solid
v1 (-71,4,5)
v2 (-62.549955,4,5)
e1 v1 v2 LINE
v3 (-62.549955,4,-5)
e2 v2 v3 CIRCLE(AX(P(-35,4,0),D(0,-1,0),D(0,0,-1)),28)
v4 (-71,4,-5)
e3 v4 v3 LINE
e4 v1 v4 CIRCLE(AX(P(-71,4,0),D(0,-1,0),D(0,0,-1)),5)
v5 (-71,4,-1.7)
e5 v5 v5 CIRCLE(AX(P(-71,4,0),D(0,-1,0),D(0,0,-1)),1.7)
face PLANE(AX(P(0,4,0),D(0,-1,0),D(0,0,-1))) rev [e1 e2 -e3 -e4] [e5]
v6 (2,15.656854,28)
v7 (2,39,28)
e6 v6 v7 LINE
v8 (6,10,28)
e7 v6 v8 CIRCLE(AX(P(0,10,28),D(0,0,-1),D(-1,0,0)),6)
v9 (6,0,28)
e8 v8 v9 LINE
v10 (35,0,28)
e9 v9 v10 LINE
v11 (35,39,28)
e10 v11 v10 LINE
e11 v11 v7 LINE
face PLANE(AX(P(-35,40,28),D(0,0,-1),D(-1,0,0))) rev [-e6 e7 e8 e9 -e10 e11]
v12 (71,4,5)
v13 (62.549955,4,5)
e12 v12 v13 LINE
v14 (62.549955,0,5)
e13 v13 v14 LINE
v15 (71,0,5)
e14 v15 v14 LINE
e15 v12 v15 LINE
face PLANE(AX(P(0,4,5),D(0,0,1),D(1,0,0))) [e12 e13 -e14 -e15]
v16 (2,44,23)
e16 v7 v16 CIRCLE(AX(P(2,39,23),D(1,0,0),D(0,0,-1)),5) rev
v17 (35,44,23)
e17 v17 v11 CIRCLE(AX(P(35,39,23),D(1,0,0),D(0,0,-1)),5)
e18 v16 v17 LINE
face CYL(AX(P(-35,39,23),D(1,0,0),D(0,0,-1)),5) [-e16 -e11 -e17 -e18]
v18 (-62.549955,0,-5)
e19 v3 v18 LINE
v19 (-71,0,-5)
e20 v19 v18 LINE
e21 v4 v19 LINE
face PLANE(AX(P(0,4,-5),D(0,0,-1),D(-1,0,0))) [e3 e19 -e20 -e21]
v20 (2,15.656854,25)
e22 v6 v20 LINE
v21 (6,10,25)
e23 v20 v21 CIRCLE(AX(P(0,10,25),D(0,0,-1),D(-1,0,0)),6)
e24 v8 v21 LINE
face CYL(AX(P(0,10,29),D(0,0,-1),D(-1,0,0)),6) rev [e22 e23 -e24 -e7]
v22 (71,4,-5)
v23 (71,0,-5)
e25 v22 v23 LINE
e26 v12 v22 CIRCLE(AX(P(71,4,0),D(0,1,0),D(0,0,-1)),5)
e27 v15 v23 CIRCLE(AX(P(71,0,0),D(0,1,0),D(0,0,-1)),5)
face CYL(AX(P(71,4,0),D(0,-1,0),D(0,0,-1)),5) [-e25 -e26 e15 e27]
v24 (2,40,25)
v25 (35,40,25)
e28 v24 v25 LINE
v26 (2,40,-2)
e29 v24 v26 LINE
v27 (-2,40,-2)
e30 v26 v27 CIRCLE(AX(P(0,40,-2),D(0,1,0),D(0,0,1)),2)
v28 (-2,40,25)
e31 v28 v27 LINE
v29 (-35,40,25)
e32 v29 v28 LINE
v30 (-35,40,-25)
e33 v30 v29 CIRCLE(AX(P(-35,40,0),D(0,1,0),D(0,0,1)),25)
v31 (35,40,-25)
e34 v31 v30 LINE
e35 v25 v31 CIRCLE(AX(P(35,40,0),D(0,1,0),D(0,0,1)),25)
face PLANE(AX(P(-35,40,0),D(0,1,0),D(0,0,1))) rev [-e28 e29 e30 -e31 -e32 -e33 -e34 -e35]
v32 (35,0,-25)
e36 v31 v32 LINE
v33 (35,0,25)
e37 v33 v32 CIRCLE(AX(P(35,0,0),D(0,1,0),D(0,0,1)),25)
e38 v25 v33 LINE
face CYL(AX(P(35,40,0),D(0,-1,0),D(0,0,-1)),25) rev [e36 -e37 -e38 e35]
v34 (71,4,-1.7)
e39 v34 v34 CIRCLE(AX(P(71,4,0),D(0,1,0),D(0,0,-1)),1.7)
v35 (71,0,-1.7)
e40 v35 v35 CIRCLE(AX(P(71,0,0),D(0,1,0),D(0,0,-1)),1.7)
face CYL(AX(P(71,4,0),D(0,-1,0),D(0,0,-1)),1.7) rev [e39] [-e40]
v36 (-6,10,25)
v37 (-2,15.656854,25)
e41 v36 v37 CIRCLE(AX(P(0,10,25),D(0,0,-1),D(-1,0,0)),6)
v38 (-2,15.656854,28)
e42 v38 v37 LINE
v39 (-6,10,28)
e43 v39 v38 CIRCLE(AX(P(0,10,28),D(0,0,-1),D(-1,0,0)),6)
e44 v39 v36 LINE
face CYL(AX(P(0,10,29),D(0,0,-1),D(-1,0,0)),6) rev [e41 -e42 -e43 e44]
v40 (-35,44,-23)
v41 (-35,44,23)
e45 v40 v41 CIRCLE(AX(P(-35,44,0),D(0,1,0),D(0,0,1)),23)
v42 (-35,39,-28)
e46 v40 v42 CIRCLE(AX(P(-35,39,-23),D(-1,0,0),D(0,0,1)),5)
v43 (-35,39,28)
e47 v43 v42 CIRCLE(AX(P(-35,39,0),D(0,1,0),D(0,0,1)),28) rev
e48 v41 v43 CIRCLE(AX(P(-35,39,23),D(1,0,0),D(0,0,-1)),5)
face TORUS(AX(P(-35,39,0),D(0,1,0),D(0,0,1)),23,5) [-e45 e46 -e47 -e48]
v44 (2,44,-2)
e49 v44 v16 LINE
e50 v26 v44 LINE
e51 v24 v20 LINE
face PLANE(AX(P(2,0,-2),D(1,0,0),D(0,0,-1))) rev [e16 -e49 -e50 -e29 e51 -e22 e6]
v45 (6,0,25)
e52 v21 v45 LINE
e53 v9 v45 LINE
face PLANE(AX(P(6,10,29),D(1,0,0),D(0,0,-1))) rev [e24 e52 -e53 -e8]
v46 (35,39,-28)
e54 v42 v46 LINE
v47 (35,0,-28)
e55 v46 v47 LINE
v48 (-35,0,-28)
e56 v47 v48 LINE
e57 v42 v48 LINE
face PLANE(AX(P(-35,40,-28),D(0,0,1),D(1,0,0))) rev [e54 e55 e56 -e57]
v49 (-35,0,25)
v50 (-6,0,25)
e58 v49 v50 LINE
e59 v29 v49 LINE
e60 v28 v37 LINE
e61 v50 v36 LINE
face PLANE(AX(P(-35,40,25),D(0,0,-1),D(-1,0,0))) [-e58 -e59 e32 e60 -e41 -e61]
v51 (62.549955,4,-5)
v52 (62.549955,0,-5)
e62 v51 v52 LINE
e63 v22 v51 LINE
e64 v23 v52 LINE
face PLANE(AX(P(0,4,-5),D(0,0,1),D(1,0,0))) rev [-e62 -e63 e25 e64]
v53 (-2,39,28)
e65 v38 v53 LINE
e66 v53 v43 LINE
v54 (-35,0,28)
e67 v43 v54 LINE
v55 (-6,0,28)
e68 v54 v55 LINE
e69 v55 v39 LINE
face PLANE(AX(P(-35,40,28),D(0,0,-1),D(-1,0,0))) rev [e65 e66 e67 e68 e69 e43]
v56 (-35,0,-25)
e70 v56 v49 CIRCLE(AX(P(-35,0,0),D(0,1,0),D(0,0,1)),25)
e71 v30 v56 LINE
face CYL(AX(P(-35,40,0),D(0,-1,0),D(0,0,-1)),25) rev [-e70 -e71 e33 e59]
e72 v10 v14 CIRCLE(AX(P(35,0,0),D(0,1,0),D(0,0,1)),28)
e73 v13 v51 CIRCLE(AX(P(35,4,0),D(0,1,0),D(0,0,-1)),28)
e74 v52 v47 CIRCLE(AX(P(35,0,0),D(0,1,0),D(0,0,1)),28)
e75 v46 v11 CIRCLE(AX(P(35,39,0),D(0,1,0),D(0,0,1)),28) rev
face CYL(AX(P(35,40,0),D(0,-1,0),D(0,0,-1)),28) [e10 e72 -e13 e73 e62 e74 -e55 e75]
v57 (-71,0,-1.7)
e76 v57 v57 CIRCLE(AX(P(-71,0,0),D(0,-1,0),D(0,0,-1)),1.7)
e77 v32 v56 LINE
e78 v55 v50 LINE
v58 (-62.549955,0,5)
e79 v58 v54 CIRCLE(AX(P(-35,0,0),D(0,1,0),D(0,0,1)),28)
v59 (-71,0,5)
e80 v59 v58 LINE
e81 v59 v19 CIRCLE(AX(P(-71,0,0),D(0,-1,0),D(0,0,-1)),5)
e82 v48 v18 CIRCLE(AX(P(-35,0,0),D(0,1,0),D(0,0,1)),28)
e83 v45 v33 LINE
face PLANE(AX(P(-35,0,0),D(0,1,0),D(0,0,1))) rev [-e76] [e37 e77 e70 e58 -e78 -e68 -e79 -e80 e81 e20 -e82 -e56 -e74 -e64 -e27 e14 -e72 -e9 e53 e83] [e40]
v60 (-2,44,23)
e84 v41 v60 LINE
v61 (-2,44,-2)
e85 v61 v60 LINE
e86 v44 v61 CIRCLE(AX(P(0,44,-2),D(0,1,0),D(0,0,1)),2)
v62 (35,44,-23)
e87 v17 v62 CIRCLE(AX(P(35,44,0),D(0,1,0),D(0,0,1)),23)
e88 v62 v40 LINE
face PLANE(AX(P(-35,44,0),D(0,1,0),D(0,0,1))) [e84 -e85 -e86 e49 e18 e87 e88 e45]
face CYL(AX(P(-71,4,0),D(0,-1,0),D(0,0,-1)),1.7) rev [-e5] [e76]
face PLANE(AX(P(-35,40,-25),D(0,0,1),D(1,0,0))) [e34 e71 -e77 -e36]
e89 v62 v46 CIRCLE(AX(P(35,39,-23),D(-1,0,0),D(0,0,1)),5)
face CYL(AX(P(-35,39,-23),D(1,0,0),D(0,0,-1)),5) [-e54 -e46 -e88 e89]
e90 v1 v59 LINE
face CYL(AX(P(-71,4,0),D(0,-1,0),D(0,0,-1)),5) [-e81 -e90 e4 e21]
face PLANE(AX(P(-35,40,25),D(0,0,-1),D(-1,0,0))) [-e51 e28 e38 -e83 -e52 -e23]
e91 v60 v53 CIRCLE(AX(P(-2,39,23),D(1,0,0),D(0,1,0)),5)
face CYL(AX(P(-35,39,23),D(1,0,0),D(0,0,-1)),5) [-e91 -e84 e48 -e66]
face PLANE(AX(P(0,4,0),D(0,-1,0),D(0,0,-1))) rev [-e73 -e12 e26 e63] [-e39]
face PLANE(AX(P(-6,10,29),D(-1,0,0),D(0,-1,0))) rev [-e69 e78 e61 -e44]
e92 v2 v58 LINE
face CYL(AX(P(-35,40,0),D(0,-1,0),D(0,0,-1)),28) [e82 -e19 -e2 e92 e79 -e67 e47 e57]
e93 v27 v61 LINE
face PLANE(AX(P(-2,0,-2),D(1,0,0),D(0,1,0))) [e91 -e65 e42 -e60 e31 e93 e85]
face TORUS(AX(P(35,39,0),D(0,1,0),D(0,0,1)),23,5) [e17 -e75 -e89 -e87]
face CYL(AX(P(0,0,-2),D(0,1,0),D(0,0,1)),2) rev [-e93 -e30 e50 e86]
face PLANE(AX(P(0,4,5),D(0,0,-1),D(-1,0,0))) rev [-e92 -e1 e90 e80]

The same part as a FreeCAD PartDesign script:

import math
import FreeCAD as App
import Part
import Sketcher
from FreeCAD import Vector
Q = App.Units.Quantity


def edges_at(feature, points):
    """Names of the edges that pass closest to the given points."""
    edges = feature.Shape.Edges
    near = lambda p: min(range(len(edges)), key=lambda i: edges[i].distToShape(Part.Vertex(*p))[0])
    return sorted({f"Edge{near(p) + 1}" for p in points})


def add_polygon(sketch, points):
    """Adds a closed chain of lines whose ends are joined by coincident constraints."""
    first, n = sketch.GeometryCount, len(points)
    for a, b in zip(points, points[1:] + points[:1]):
        sketch.addGeometry(Part.LineSegment(App.Vector(*a, 0), App.Vector(*b, 0)), False)
    for i in range(n):
        sketch.addConstraint(Sketcher.Constraint("Coincident", first + i, 2, first + (i + 1) % n, 1))

doc = App.newDocument("Part")
body = doc.addObject("PartDesign::Body", "Body")

sketch1 = body.newObject("Sketcher::SketchObject", "Sketch")
sketch1.AttachmentSupport = (doc.getObject("XZ_Plane"), [""])
sketch1.MapMode = "FlatFace"
sketch1.addGeometry(Part.LineSegment(Vector(35, -28, 0), Vector(-35, -28, 0)), False)
sketch1.addGeometry(Part.ArcOfCircle(Part.Circle(Vector(-35, 0, 0), Vector(0, 0, 1), 28), math.radians(90), math.radians(270)), False)
sketch1.addGeometry(Part.LineSegment(Vector(-35, 28, 0), Vector(35, 28, 0)), False)
sketch1.addGeometry(Part.ArcOfCircle(Part.Circle(Vector(35, 0, 0), Vector(0, 0, 1), 28), math.radians(-90), math.radians(90)), False)
sketch1.addGeometry(Part.LineSegment(Vector(-35, -25, 0), Vector(35, -25, 0)), False)
sketch1.addGeometry(Part.ArcOfCircle(Part.Circle(Vector(35, 0, 0), Vector(0, 0, 1), 25), math.radians(-90), math.radians(90)), False)
sketch1.addGeometry(Part.LineSegment(Vector(35, 25, 0), Vector(-35, 25, 0)), False)
sketch1.addGeometry(Part.ArcOfCircle(Part.Circle(Vector(-35, 0, 0), Vector(0, 0, 1), 25), math.radians(90), math.radians(270)), False)
sketch1.addConstraint(Sketcher.Constraint("Tangent", 0, 2, 1, 2))
sketch1.addConstraint(Sketcher.Constraint("Tangent", 1, 1, 2, 1))
sketch1.addConstraint(Sketcher.Constraint("Tangent", 2, 2, 3, 2))
sketch1.addConstraint(Sketcher.Constraint("Tangent", 3, 1, 0, 1))
sketch1.addConstraint(Sketcher.Constraint("Tangent", 4, 2, 5, 1))
sketch1.addConstraint(Sketcher.Constraint("Tangent", 5, 2, 6, 1))
sketch1.addConstraint(Sketcher.Constraint("Tangent", 6, 2, 7, 1))
sketch1.addConstraint(Sketcher.Constraint("Tangent", 7, 2, 4, 1))
sketch1.addConstraint(Sketcher.Constraint("Horizontal", 0))
sketch1.addConstraint(Sketcher.Constraint("Horizontal", 2))
sketch1.addConstraint(Sketcher.Constraint("Horizontal", 4))
sketch1.addConstraint(Sketcher.Constraint("Horizontal", 6))
sketch1.addConstraint(Sketcher.Constraint("Coincident", 5, 3, 3, 3))
sketch1.addConstraint(Sketcher.Constraint("Symmetric", 1, 3, 3, 3, -1, 1))
sketch1.addConstraint(Sketcher.Constraint("Vertical", 7, 3, 0, 2))
sketch1.addConstraint(Sketcher.Constraint("Radius", 1, Q("28 mm")))
sketch1.addConstraint(Sketcher.Constraint("Radius", 5, Q("25 mm")))
sketch1.addConstraint(Sketcher.Constraint("DistanceX", 0, 2, 0, 1, Q("70 mm")))
pad1 = body.newObject("PartDesign::Pad", "Pad")
pad1.Profile = sketch1
pad1.Length = 40
pad1.Reversed = True

sketch2 = body.newObject("Sketcher::SketchObject", "Sketch001")
sketch2.AttachmentSupport = (doc.getObject("XZ_Plane"), [""])
sketch2.MapMode = "FlatFace"
sketch2.AttachmentOffset = App.Placement(Vector(0, 0, -40), App.Rotation())
sketch2.addGeometry(Part.LineSegment(Vector(35, -28, 0), Vector(-35, -28, 0)), False)
sketch2.addGeometry(Part.ArcOfCircle(Part.Circle(Vector(-35, 0, 0), Vector(0, 0, 1), 28), math.radians(90), math.radians(270)), False)
sketch2.addGeometry(Part.LineSegment(Vector(-35, 28, 0), Vector(35, 28, 0)), False)
sketch2.addGeometry(Part.ArcOfCircle(Part.Circle(Vector(35, 0, 0), Vector(0, 0, 1), 28), math.radians(-90), math.radians(90)), False)
sketch2.addConstraint(Sketcher.Constraint("Tangent", 0, 2, 1, 2))
sketch2.addConstraint(Sketcher.Constraint("Tangent", 1, 1, 2, 1))
sketch2.addConstraint(Sketcher.Constraint("Tangent", 2, 2, 3, 2))
sketch2.addConstraint(Sketcher.Constraint("Tangent", 3, 1, 0, 1))
sketch2.addConstraint(Sketcher.Constraint("Horizontal", 0))
sketch2.addConstraint(Sketcher.Constraint("Horizontal", 2))
sketch2.addConstraint(Sketcher.Constraint("Symmetric", 1, 3, 3, 3, -1, 1))
sketch2.addConstraint(Sketcher.Constraint("Radius", 1, Q("28 mm")))
sketch2.addConstraint(Sketcher.Constraint("DistanceX", 0, 2, 0, 1, Q("70 mm")))
pad2 = body.newObject("PartDesign::Pad", "Pad001")
pad2.Profile = sketch2
pad2.Length = 4
pad2.Reversed = True

sketch3 = body.newObject("Sketcher::SketchObject", "Sketch002")
sketch3.AttachmentSupport = (doc.getObject("XZ_Plane"), [""])
sketch3.MapMode = "FlatFace"
sketch3.addGeometry(Part.LineSegment(Vector(-62.5, 5, 0), Vector(-71, 5, 0)), False)
sketch3.addGeometry(Part.ArcOfCircle(Part.Circle(Vector(-71, 0, 0), Vector(0, 0, 1), 5), math.radians(90), math.radians(270)), False)
sketch3.addGeometry(Part.LineSegment(Vector(-71, -5, 0), Vector(-62.5, -5, 0)), False)
sketch3.addGeometry(Part.ArcOfCircle(Part.Circle(Vector(-35, 0, 0), Vector(0, 0, 1), 28), math.radians(170), math.radians(190)), False)
sketch3.addGeometry(Part.Circle(Vector(-71, 0, 0), Vector(0, 0, 1), 1.7), False)
sketch3.addConstraint(Sketcher.Constraint("Tangent", 0, 2, 1, 1))
sketch3.addConstraint(Sketcher.Constraint("Tangent", 1, 2, 2, 1))
sketch3.addConstraint(Sketcher.Constraint("Coincident", 2, 2, 3, 2))
sketch3.addConstraint(Sketcher.Constraint("Coincident", 3, 1, 0, 1))
sketch3.addConstraint(Sketcher.Constraint("Horizontal", 0))
sketch3.addConstraint(Sketcher.Constraint("Horizontal", 2))
sketch3.addConstraint(Sketcher.Constraint("Coincident", 4, 3, 1, 3))
sketch3.addConstraint(Sketcher.Constraint("Symmetric", 2, 2, 3, 1, -1))
sketch3.addConstraint(Sketcher.Constraint("Radius", 1, Q("5 mm")))
sketch3.addConstraint(Sketcher.Constraint("Radius", 3, Q("28 mm")))
sketch3.addConstraint(Sketcher.Constraint("Diameter", 4, Q("3.4 mm")))
sketch3.addConstraint(Sketcher.Constraint("DistanceX", 1, 3, -1, 1, Q("71 mm")))
sketch3.addConstraint(Sketcher.Constraint("DistanceX", 3, 3, -1, 1, Q("35 mm")))
pad3 = body.newObject("PartDesign::Pad", "Pad002")
pad3.Profile = sketch3
pad3.Length = 4
pad3.Reversed = True
doc.recompute()

mirrored = body.newObject("PartDesign::Mirrored", "Mirrored")
mirrored.Originals = [pad3]
mirrored.MirrorPlane = (doc.getObject("YZ_Plane"), [""])
body.Tip = mirrored

sketch4 = body.newObject("Sketcher::SketchObject", "Sketch003")
sketch4.AttachmentSupport = (doc.getObject("XY_Plane"), [""])
sketch4.MapMode = "FlatFace"
sketch4.AttachmentOffset = App.Placement(Vector(0, 0, 25), App.Rotation())
sketch4.addGeometry(Part.LineSegment(Vector(-6, 0, 0), Vector(-6, 10, 0)), False)
sketch4.addGeometry(Part.ArcOfCircle(Part.Circle(Vector(0, 10, 0), Vector(0, 0, 1), 6), math.radians(0), math.radians(180)), False)
sketch4.addGeometry(Part.LineSegment(Vector(6, 10, 0), Vector(6, 0, 0)), False)
sketch4.addGeometry(Part.LineSegment(Vector(6, 0, 0), Vector(-6, 0, 0)), False)
sketch4.addConstraint(Sketcher.Constraint("Tangent", 0, 2, 1, 2))
sketch4.addConstraint(Sketcher.Constraint("Tangent", 1, 1, 2, 1))
sketch4.addConstraint(Sketcher.Constraint("Coincident", 2, 2, 3, 1))
sketch4.addConstraint(Sketcher.Constraint("Coincident", 3, 2, 0, 1))
sketch4.addConstraint(Sketcher.Constraint("Vertical", 0))
sketch4.addConstraint(Sketcher.Constraint("Vertical", 2))
sketch4.addConstraint(Sketcher.Constraint("Horizontal", 3))
sketch4.addConstraint(Sketcher.Constraint("Symmetric", 2, 2, 3, 2, -1, 1))
sketch4.addConstraint(Sketcher.Constraint("Radius", 1, Q("6 mm")))
sketch4.addConstraint(Sketcher.Constraint("DistanceY", 0, 1, 0, 2, Q("10 mm")))
pocket1 = body.newObject("PartDesign::Pocket", "Pocket")
pocket1.Profile = sketch4
pocket1.Length = 4
pocket1.Reversed = True

sketch5 = body.newObject("Sketcher::SketchObject", "Sketch004")
sketch5.AttachmentSupport = (doc.getObject("XY_Plane"), [""])
sketch5.MapMode = "FlatFace"
sketch5.AttachmentOffset = App.Placement(Vector(0, 0, 28), App.Rotation())
add_polygon(sketch5, [(-2, 44), (-2, 0), (2, 0), (2, 44)])
sketch5.addConstraint(Sketcher.Constraint("Vertical", 0))
sketch5.addConstraint(Sketcher.Constraint("Horizontal", 1))
sketch5.addConstraint(Sketcher.Constraint("Vertical", 2))
sketch5.addConstraint(Sketcher.Constraint("Horizontal", 3))
sketch5.addConstraint(Sketcher.Constraint("Symmetric", 0, 2, 1, 2, -1, 1))
sketch5.addConstraint(Sketcher.Constraint("DistanceX", 1, 1, 1, 2, Q("4 mm")))
sketch5.addConstraint(Sketcher.Constraint("DistanceY", 0, 2, 0, 1, Q("44 mm")))
pocket2 = body.newObject("PartDesign::Pocket", "Pocket001")
pocket2.Profile = sketch5
pocket2.Length = 30

sketch6 = body.newObject("Sketcher::SketchObject", "Sketch005")
sketch6.AttachmentSupport = (doc.getObject("XZ_Plane"), [""])
sketch6.MapMode = "FlatFace"
sketch6.AttachmentOffset = App.Placement(Vector(0, 0, -44), App.Rotation())
sketch6.addGeometry(Part.Circle(Vector(0, -2, 0), Vector(0, 0, 1), 2), False)
sketch6.addConstraint(Sketcher.Constraint("PointOnObject", 0, 3, -2))
sketch6.addConstraint(Sketcher.Constraint("Diameter", 0, Q("4 mm")))
sketch6.addConstraint(Sketcher.Constraint("DistanceY", 0, 3, -1, 1, Q("2 mm")))
pocket3 = body.newObject("PartDesign::Pocket", "Pocket002")
pocket3.Profile = sketch6
pocket3.Type = "ThroughAll"
pocket3.Reversed = True
doc.recompute()

fillet = body.newObject("PartDesign::Fillet", "Fillet")
fillet.Base = (pocket3, edges_at(pocket3, [
    (18.5, 44, 28),
    (-63, 44, 0),
    (0, 44, -28),
    (63, 44, 0),
]))
fillet.Radius = 5

doc.recompute()
